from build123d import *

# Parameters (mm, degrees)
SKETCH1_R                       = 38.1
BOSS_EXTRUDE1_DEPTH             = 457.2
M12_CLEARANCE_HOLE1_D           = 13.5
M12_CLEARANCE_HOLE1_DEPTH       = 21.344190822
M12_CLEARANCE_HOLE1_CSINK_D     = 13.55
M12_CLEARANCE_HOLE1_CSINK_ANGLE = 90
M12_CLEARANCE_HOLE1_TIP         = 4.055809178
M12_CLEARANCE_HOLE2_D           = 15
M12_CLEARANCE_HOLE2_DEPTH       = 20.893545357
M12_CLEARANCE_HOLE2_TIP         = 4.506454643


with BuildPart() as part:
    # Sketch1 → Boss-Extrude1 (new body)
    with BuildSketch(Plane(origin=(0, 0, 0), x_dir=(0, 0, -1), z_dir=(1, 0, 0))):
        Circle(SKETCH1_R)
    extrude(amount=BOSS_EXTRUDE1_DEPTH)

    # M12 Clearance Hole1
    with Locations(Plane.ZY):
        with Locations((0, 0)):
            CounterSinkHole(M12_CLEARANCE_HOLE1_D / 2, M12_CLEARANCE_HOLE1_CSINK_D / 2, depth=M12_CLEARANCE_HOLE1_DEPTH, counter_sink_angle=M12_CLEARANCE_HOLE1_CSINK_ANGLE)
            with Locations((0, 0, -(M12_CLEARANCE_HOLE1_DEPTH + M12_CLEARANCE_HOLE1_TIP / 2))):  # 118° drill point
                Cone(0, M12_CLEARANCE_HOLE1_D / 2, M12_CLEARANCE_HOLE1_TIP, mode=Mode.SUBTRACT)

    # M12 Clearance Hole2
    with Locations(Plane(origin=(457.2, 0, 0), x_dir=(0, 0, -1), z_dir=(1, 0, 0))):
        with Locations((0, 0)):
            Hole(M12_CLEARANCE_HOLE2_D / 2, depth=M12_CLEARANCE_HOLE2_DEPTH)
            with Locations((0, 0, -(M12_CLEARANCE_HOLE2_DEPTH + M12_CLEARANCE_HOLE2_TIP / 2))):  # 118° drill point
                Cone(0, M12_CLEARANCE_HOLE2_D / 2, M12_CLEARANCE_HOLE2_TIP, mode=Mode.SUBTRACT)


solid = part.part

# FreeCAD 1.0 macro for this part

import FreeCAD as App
import Part
import Sketcher

doc = App.newDocument("Part")
params = doc.addObject("Spreadsheet::Sheet", "Params")
for row, (alias, value) in enumerate([
    ("sketch1_diameter", "76.2 mm"),
    ("pad1_length", "457.2 mm"),
    ("sketch2_diameter", "13.5 mm"),
    ("hole_diameter", "13.5 mm"),
    ("hole_depth", "21.344191 mm"),
    ("hole_csink_diameter", "13.55 mm"),
    ("sketch3_diameter", "15 mm"),
    ("hole2_diameter", "15 mm"),
    ("hole2_depth", "20.893545 mm"),
], start=1):
    params.set(f"A{row}", alias)
    params.set(f"B{row}", "=" + value)
    params.setAlias(f"B{row}", alias)

body = doc.addObject("PartDesign::Body", "Body")

# Sketch on YZ plane
sketch1 = body.newObject("Sketcher::SketchObject", "Sketch")
sketch1.AttachmentSupport = (doc.getObject("YZ_Plane"), [""])
sketch1.MapMode = "FlatFace"
sketch1.addGeometry(Part.Circle(App.Vector(0, 0, 0), App.Vector(0, 0, 1), 38), False)
sketch1.addConstraint(Sketcher.Constraint("Coincident", 0, 3, -1, 1))
sketch1.addConstraint(Sketcher.Constraint("Diameter", 0, 76.2))
sketch1.setExpression("Constraints[1]", "Params.sketch1_diameter")
pad1 = body.newObject("PartDesign::Pad", "Pad")
pad1.Profile = sketch1
pad1.setExpression("Length", "Params.pad1_length")

# Sketch on YZ plane
sketch2 = body.newObject("Sketcher::SketchObject", "Sketch001")
sketch2.AttachmentSupport = (doc.getObject("YZ_Plane"), [""])
sketch2.MapMode = "FlatFace"
sketch2.addGeometry(Part.Circle(App.Vector(0, 0, 0), App.Vector(0, 0, 1), 7), False)
sketch2.addConstraint(Sketcher.Constraint("Coincident", 0, 3, -1, 1))
sketch2.addConstraint(Sketcher.Constraint("Diameter", 0, 13.5))
sketch2.setExpression("Constraints[1]", "Params.sketch2_diameter")
doc.recompute()
hole = body.newObject("PartDesign::Hole", "Hole")
hole.Profile = sketch2
hole.ThreadType = "None"
hole.setExpression("Diameter", "Params.hole_diameter")
hole.DepthType = "Dimension"
hole.setExpression("Depth", "Params.hole_depth")
hole.DrillPoint = "Angled"
hole.DrillPointAngle = 118
hole.HoleCutType = "Countersink"
hole.setExpression("HoleCutDiameter", "Params.hole_csink_diameter")
hole.HoleCutCountersinkAngle = 90
hole.Reversed = True

# Sketch on YZ plane
sketch3 = body.newObject("Sketcher::SketchObject", "Sketch002")
sketch3.AttachmentSupport = (doc.getObject("YZ_Plane"), [""])
sketch3.MapMode = "FlatFace"
sketch3.AttachmentOffset = App.Placement(App.Vector(0, 0, 457.2), App.Rotation())
sketch3.addGeometry(Part.Circle(App.Vector(0, 0, 0), App.Vector(0, 0, 1), 8), False)
sketch3.addConstraint(Sketcher.Constraint("Coincident", 0, 3, -1, 1))
sketch3.addConstraint(Sketcher.Constraint("Diameter", 0, 15.0))
sketch3.setExpression("Constraints[1]", "Params.sketch3_diameter")
doc.recompute()
hole2 = body.newObject("PartDesign::Hole", "Hole001")
hole2.Profile = sketch3
hole2.ThreadType = "None"
hole2.setExpression("Diameter", "Params.hole2_diameter")
hole2.DepthType = "Dimension"
hole2.setExpression("Depth", "Params.hole2_depth")
hole2.DrillPoint = "Angled"
hole2.DrillPointAngle = 118

doc.recompute()
